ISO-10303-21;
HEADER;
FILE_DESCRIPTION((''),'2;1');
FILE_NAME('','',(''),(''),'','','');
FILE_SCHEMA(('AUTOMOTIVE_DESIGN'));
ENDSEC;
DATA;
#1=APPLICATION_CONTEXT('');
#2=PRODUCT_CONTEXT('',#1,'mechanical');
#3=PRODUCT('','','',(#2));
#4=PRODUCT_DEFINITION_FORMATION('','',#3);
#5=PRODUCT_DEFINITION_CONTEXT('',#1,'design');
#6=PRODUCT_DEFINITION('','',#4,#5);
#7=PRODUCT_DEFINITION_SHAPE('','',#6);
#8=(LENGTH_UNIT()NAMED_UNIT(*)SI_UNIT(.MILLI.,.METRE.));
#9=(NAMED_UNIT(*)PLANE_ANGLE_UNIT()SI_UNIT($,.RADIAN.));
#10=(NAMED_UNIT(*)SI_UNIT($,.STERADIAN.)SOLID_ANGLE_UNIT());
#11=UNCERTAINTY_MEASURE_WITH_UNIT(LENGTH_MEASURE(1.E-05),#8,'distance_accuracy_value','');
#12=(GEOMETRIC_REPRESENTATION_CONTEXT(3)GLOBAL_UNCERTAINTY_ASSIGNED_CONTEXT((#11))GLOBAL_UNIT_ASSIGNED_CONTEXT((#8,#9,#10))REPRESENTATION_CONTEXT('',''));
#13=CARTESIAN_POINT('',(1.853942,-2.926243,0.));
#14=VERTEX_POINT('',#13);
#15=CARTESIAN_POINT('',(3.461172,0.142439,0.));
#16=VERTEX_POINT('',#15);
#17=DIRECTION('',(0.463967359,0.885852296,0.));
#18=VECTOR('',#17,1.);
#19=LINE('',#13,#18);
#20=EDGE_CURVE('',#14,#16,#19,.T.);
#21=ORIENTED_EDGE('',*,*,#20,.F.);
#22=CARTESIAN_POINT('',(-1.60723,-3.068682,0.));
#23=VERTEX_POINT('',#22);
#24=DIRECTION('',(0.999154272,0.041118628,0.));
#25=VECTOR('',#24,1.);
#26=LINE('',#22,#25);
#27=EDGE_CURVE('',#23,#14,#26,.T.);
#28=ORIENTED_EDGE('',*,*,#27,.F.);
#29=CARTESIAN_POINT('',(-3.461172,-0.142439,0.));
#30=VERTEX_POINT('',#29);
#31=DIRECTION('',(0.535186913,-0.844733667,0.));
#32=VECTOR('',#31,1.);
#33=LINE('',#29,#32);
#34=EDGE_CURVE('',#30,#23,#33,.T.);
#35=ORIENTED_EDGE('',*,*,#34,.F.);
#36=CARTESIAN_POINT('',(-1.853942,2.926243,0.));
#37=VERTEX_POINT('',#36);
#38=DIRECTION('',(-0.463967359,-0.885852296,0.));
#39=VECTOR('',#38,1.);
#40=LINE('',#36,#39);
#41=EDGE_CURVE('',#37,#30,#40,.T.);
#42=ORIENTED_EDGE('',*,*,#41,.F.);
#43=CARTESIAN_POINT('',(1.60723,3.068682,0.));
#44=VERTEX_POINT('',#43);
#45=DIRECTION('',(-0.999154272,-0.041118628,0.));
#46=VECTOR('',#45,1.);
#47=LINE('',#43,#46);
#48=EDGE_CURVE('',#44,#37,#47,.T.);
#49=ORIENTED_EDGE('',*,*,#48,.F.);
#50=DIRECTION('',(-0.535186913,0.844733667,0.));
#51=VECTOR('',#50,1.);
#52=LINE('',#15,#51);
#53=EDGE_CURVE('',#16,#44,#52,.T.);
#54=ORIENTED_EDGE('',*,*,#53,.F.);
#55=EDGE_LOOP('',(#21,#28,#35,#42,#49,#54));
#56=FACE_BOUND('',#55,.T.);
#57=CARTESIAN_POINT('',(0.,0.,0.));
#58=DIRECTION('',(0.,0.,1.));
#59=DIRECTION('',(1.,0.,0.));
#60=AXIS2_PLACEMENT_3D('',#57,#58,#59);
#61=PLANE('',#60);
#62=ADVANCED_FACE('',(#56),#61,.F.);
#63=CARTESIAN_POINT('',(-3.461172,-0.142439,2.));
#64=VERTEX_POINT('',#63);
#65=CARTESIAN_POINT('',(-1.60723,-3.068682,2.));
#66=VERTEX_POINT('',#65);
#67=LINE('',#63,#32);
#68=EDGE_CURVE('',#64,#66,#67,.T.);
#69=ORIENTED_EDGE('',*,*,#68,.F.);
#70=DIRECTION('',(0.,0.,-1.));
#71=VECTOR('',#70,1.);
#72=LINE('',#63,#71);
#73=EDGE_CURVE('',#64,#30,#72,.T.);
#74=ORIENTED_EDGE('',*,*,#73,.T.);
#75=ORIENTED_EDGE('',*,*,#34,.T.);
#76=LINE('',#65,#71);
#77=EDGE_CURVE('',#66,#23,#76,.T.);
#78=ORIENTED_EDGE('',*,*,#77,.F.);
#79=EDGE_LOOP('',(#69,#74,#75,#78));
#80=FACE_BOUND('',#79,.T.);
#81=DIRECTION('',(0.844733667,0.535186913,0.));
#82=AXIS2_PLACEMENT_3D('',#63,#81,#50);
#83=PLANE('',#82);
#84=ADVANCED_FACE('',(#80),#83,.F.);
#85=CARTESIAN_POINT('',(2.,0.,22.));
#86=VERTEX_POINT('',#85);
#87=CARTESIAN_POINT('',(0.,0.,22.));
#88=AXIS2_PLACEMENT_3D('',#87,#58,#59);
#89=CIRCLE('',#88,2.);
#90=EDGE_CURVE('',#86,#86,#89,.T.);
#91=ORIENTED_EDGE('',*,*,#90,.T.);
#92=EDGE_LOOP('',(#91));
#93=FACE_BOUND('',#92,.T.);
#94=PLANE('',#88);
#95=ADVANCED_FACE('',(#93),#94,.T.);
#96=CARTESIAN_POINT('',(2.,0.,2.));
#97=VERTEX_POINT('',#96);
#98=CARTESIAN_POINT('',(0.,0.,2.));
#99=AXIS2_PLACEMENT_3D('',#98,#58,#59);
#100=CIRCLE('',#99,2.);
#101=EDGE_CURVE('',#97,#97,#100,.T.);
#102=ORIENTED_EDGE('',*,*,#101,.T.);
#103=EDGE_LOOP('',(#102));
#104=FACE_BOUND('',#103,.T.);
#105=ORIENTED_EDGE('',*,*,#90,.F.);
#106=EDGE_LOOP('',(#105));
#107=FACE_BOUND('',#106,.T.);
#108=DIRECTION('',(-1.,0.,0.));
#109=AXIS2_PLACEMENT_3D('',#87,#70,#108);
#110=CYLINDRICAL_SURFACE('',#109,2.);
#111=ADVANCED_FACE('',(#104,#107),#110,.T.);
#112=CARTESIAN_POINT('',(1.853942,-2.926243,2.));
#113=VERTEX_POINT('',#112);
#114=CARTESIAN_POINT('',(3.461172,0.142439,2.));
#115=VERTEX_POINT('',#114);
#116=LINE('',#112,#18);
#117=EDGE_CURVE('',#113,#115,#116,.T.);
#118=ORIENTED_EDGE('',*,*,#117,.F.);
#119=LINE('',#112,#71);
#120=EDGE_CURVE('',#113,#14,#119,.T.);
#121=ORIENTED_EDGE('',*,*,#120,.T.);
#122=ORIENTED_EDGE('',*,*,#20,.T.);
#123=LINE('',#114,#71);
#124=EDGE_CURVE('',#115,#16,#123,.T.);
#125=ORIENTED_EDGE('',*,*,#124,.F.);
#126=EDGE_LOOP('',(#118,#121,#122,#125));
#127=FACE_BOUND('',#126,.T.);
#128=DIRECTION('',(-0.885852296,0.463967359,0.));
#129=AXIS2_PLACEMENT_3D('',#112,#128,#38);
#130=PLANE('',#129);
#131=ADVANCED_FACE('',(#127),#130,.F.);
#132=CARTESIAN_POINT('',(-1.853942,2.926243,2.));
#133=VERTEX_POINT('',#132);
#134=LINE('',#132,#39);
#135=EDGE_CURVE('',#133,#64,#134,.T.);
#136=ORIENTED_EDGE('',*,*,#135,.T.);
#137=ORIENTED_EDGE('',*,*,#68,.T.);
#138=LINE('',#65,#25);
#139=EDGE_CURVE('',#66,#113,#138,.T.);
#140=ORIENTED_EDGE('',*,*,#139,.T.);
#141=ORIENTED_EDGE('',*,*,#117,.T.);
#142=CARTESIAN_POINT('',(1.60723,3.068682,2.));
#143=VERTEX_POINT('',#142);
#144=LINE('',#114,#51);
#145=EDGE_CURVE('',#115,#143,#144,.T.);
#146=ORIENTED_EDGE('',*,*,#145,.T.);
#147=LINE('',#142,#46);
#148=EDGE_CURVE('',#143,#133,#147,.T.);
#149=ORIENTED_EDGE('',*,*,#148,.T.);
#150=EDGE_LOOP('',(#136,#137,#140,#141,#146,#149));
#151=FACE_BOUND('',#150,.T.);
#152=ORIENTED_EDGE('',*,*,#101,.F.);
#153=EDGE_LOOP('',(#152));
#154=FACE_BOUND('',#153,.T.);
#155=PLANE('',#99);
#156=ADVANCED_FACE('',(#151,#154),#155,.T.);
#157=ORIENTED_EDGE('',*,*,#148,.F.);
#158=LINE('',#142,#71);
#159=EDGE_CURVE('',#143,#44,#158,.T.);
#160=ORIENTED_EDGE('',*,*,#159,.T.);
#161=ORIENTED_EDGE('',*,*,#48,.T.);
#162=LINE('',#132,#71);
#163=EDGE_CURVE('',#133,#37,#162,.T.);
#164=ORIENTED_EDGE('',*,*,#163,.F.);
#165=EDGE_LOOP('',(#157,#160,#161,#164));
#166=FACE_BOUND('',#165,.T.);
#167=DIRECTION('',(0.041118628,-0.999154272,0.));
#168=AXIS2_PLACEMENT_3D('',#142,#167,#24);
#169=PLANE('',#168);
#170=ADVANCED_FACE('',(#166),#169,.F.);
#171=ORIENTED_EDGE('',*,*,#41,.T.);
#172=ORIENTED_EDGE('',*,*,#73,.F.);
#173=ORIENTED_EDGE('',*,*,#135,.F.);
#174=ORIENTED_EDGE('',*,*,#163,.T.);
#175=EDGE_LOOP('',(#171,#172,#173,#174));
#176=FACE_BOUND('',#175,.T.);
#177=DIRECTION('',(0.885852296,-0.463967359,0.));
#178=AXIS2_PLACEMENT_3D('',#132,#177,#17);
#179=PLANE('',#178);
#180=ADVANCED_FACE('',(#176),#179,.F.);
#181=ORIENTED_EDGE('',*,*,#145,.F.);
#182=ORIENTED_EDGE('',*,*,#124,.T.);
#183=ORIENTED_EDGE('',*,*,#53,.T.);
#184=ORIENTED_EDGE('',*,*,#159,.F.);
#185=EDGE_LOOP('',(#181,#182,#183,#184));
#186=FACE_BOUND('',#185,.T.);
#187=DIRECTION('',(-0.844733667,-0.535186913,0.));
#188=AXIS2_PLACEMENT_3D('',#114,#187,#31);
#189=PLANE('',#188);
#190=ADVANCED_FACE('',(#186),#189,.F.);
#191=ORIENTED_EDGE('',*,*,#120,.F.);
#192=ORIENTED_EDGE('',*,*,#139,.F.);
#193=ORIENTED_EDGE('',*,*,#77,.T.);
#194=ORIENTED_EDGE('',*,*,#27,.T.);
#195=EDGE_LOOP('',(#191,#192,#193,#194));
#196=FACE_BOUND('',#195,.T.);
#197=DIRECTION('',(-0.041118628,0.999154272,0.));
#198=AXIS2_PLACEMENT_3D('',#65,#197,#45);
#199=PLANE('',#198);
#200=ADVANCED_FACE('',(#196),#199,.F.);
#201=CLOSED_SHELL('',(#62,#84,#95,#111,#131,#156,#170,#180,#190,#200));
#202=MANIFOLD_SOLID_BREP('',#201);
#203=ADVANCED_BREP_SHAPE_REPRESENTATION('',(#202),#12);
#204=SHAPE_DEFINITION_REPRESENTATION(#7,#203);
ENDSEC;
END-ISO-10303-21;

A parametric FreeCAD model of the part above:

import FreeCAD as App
import Part
import Sketcher
from FreeCAD import Vector

doc = App.newDocument("Part")
params = doc.addObject("Spreadsheet::Sheet", "Params")
for row, (alias, value) in enumerate([
    ("pad1_length", "2 mm"),
    ("sketch2_diameter", "4 mm"),
    ("pad2_length", "20 mm"),
], start=1):
    params.set(f"A{row}", alias)
    params.set(f"B{row}", "=" + value)
    params.setAlias(f"B{row}", alias)

body = doc.addObject("PartDesign::Body", "Body")

# Sketch on XY plane
sketch1 = body.newObject("Sketcher::SketchObject", "Sketch")
sketch1.AttachmentSupport = (doc.getObject("XY_Plane"), [""])
sketch1.MapMode = "FlatFace"
sketch1.addGeometry([
    Part.LineSegment(Vector(1.853942, -2.926243, 0), Vector(3.461172, 0.142439, 0)),  # 0
    Part.LineSegment(Vector(3.461172, 0.142439, 0), Vector(1.60723, 3.068682, 0)),  # 1
    Part.LineSegment(Vector(1.60723, 3.068682, 0), Vector(-1.853942, 2.926243, 0)),  # 2
    Part.LineSegment(Vector(-1.853942, 2.926243, 0), Vector(-3.461172, -0.142439, 0)),  # 3
    Part.LineSegment(Vector(-3.461172, -0.142439, 0), Vector(-1.60723, -3.068682, 0)),  # 4
    Part.LineSegment(Vector(-1.60723, -3.068682, 0), Vector(1.853942, -2.926243, 0)),  # 5
], False)
sketch1.addConstraint([
    Sketcher.Constraint("Coincident", 0, 2, 1, 1),
    Sketcher.Constraint("Coincident", 1, 2, 2, 1),
    Sketcher.Constraint("Coincident", 2, 2, 3, 1),
    Sketcher.Constraint("Coincident", 3, 2, 4, 1),
    Sketcher.Constraint("Coincident", 4, 2, 5, 1),
    Sketcher.Constraint("Coincident", 5, 2, 0, 1),
    Sketcher.Constraint("Symmetric", 0, 2, 3, 2, -1, 1),
    Sketcher.Constraint("Symmetric", 1, 2, 4, 2, -1, 1),
    Sketcher.Constraint("Symmetric", 2, 2, 5, 2, -1, 1),
    Sketcher.Constraint("Equal", 0, 1),
    Sketcher.Constraint("Equal", 1, 2),
    Sketcher.Constraint("Distance", 0, 3.464102),
    Sketcher.Constraint("DistanceX", -1, 1, 0, 2, 3.461172),
    Sketcher.Constraint("DistanceY", -1, 1, 0, 2, 0.142439),
    Sketcher.Constraint("DistanceX", -1, 1, 1, 2, 1.60723),
])
pad1 = body.newObject("PartDesign::Pad", "Pad")
pad1.Profile = sketch1
pad1.setExpression("Length", "Params.pad1_length")

# Sketch on XY plane
sketch2 = body.newObject("Sketcher::SketchObject", "Sketch001")
sketch2.AttachmentSupport = (doc.getObject("XY_Plane"), [""])
sketch2.MapMode = "FlatFace"
sketch2.AttachmentOffset = App.Placement(Vector(0, 0, 2), App.Rotation())
sketch2.addGeometry(Part.Circle(Vector(0, 0, 0), Vector(0, 0, 1), 2), False)
sketch2.addConstraint([
    Sketcher.Constraint("Coincident", 0, 3, -1, 1),
    Sketcher.Constraint("Diameter", 0, 4.0),
])
sketch2.setExpression("Constraints[1]", "Params.sketch2_diameter")
pad2 = body.newObject("PartDesign::Pad", "Pad001")
pad2.Profile = sketch2
pad2.setExpression("Length", "Params.pad2_length")

doc.recompute()
